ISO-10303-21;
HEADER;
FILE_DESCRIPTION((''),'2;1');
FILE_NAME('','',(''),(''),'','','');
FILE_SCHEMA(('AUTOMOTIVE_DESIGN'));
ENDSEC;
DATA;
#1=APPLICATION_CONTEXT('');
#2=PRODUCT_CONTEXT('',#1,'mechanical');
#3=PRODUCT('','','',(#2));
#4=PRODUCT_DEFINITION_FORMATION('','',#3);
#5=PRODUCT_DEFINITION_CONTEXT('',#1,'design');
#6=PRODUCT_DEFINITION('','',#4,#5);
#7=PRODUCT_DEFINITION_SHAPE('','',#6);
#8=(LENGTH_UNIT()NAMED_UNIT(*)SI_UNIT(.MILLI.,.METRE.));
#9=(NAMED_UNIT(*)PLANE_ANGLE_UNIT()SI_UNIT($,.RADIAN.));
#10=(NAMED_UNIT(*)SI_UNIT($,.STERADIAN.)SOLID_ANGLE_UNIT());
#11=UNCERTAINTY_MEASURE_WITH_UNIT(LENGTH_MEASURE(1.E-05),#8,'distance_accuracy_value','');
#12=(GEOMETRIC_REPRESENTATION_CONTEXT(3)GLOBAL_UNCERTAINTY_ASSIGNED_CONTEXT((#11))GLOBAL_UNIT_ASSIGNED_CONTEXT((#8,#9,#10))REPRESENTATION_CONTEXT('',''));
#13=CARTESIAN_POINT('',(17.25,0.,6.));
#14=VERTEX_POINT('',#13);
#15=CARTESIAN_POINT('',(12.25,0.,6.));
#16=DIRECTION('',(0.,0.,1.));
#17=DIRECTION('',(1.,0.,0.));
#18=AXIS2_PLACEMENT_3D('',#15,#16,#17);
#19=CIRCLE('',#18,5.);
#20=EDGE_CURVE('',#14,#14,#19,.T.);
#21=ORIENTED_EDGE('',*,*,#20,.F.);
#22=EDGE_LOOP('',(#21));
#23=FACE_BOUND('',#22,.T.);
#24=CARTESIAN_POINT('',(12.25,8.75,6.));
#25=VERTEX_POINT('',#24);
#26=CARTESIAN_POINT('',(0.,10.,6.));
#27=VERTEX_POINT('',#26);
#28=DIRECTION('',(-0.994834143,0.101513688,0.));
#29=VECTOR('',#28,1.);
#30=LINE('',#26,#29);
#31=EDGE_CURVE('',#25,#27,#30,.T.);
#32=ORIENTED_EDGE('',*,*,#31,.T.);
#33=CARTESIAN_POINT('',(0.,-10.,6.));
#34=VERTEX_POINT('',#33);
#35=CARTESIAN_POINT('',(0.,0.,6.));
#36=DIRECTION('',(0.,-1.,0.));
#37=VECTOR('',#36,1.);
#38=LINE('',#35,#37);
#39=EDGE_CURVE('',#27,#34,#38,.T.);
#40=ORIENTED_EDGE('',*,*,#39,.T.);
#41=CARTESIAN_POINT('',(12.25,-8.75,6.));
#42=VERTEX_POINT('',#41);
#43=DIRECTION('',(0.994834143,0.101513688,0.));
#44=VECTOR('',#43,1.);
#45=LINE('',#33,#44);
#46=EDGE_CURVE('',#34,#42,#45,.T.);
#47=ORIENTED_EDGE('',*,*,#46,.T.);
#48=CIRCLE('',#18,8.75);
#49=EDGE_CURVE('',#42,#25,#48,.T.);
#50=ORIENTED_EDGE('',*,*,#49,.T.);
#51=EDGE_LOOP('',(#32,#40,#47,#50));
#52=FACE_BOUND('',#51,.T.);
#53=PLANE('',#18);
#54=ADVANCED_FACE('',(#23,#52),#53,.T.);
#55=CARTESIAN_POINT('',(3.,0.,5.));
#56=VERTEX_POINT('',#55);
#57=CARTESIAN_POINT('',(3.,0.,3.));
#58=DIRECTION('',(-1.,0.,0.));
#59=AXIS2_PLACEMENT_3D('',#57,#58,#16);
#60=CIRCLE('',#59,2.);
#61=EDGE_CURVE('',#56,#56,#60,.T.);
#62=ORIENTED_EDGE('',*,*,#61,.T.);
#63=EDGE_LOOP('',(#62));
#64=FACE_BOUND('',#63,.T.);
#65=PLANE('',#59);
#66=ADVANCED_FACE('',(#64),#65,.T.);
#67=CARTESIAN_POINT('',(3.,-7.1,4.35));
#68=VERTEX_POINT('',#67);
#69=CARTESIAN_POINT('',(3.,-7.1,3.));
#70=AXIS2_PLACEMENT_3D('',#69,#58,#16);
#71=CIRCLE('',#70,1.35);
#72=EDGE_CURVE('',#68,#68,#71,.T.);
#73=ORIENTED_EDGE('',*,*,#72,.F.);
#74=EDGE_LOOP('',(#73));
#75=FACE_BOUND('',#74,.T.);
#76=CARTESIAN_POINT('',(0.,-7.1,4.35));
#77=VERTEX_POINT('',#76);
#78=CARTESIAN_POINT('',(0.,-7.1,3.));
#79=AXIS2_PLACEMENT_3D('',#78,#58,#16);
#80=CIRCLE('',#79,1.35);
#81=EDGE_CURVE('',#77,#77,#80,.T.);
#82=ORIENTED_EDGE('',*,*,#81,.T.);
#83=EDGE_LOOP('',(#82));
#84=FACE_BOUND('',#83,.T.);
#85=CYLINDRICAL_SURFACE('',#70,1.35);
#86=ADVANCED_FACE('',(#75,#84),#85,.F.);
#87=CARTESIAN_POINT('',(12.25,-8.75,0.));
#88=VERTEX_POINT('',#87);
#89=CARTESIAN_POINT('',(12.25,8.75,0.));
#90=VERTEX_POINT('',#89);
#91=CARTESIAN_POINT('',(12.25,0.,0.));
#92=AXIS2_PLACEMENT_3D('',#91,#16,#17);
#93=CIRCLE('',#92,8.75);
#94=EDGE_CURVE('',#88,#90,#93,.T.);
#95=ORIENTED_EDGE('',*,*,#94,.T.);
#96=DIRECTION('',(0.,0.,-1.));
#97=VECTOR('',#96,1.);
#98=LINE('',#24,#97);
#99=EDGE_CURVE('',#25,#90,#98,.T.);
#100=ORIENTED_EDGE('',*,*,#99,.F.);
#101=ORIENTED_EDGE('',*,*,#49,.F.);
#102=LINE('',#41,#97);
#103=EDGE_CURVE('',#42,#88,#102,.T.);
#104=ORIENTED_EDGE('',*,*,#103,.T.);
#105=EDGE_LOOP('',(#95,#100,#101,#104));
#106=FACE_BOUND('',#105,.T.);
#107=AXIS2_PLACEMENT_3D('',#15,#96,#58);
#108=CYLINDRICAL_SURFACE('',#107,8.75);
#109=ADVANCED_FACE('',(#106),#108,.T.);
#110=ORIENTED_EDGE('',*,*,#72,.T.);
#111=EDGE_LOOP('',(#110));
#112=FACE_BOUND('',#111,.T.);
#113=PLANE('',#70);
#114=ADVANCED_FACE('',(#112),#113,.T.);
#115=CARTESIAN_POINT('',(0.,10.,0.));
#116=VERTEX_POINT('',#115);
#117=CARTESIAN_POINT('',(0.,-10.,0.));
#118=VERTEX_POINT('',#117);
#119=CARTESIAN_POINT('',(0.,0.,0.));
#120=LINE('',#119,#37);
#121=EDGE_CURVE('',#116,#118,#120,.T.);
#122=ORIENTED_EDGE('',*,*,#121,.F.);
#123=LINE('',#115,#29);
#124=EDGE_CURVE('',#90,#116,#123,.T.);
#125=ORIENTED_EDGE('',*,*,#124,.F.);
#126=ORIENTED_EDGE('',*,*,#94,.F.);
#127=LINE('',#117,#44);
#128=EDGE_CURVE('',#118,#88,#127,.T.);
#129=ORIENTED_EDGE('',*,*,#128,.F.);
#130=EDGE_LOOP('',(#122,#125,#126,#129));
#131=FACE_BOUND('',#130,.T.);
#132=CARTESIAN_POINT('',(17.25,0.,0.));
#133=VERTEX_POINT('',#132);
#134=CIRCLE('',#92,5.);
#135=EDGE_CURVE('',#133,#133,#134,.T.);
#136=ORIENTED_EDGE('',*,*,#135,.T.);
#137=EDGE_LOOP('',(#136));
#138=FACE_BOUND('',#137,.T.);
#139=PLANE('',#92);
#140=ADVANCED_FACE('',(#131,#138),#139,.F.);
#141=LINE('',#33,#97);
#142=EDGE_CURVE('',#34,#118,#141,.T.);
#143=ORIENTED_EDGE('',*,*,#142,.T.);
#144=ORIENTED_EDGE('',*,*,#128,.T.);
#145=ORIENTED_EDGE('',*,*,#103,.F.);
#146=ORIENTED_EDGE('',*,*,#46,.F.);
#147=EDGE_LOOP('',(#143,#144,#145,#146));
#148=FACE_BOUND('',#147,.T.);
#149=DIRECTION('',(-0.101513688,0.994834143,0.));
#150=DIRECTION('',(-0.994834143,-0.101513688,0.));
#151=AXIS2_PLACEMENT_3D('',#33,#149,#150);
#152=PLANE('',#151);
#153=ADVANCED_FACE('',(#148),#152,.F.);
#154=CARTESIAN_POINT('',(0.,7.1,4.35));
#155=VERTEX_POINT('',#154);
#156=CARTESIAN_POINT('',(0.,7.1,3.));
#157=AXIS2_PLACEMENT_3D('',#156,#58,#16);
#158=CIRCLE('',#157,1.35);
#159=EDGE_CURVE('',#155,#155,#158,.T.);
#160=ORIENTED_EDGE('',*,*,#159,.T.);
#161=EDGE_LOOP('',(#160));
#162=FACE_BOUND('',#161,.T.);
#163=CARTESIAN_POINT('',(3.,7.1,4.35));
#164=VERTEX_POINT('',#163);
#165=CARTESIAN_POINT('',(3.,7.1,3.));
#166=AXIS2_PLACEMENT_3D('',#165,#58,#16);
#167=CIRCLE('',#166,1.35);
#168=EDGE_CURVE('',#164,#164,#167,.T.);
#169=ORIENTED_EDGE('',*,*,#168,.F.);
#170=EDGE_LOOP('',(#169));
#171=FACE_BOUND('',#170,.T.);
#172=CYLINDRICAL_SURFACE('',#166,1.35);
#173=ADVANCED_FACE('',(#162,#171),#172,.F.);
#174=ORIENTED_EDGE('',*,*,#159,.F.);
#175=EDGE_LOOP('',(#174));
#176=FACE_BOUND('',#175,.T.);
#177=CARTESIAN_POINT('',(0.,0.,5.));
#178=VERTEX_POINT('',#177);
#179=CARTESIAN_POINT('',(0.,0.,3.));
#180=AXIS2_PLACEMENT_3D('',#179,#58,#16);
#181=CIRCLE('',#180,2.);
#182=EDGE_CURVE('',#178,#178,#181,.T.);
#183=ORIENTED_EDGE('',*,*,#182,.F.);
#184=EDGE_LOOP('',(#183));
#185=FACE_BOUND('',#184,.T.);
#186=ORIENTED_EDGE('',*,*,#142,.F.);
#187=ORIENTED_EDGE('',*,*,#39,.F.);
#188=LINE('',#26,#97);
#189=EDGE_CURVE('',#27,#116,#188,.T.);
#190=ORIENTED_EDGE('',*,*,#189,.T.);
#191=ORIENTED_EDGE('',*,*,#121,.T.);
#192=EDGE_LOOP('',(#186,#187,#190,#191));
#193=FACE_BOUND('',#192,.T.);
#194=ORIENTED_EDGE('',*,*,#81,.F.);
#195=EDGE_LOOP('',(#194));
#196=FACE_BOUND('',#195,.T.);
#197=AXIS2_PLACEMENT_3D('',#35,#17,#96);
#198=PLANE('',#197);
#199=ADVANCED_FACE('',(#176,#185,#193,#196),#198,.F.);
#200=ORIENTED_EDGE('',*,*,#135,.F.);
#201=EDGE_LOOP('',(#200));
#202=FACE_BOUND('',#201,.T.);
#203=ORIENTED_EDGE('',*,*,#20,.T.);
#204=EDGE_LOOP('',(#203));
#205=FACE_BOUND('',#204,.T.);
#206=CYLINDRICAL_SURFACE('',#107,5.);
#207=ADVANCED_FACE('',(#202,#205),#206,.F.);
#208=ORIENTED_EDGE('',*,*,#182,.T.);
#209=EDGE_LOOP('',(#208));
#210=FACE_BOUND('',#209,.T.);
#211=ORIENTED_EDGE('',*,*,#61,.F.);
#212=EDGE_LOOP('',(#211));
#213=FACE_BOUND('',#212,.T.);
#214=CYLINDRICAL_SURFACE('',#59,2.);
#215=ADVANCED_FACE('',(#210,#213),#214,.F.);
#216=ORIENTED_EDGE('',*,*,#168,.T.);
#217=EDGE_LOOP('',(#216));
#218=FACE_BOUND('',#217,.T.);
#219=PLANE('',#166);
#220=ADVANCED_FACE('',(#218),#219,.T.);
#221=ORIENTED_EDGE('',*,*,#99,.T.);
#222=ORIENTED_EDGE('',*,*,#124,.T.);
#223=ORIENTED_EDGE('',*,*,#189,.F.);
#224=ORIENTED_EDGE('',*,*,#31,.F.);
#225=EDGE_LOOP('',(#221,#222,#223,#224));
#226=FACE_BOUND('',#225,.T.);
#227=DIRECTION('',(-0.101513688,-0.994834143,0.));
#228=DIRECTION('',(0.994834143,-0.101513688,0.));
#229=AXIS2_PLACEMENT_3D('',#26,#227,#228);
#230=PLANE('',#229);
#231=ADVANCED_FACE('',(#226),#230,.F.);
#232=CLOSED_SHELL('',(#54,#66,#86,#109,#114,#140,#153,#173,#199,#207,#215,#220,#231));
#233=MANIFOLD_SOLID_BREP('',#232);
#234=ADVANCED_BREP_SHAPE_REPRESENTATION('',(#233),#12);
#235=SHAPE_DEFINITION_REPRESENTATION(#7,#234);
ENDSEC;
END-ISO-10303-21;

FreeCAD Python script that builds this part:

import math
import FreeCAD as App
import Part
import Sketcher

doc = App.newDocument("Part")
body = doc.addObject("PartDesign::Body", "Body")

sketch1 = body.newObject("Sketcher::SketchObject", "Sketch")
sketch1.AttachmentSupport = (doc.getObject("XY_Plane"), [""])
sketch1.MapMode = "FlatFace"
sketch1.addGeometry([
    Part.LineSegment(App.Vector(12.25, 8.75, 0), App.Vector(0, 10, 0)),
    Part.LineSegment(App.Vector(0, 10, 0), App.Vector(0, -10, 0)),
    Part.LineSegment(App.Vector(0, -10, 0), App.Vector(12.25, -8.75, 0)),
    Part.ArcOfCircle(Part.Circle(App.Vector(12.25, 0, 0), App.Vector(0, 0, 1), 8.75), math.radians(-90), math.radians(90)),
    Part.Circle(App.Vector(12.25, 0, 0), App.Vector(0, 0, 1), 5),
], False)
sketch1.addConstraint([
    Sketcher.Constraint("Coincident", 0, 2, 1, 1),
    Sketcher.Constraint("Coincident", 1, 2, 2, 1),
    Sketcher.Constraint("Coincident", 2, 2, 3, 1),
    Sketcher.Constraint("Coincident", 3, 2, 0, 1),
    Sketcher.Constraint("Vertical", 1),
    Sketcher.Constraint("Coincident", 4, 3, 3, 3),
    Sketcher.Constraint("Symmetric", 0, 2, 1, 2, -1, 1),
    Sketcher.Constraint("Symmetric", 2, 2, 3, 2, -1),
    Sketcher.Constraint("Vertical", 4, 3, 2, 2),
    Sketcher.Constraint("Diameter", 4, 10.0),
    Sketcher.Constraint("DistanceY", 1, 2, 1, 1, 20.0),
    Sketcher.Constraint("Radius", 3, 8.75),
    Sketcher.Constraint("DistanceX", -1, 1, 3, 3, 12.25),
])
pad1 = body.newObject("PartDesign::Pad", "Pad")
pad1.Profile = sketch1
pad1.Length = 6

sketch2 = body.newObject("Sketcher::SketchObject", "Sketch001")
sketch2.AttachmentSupport = (doc.getObject("YZ_Plane"), [""])
sketch2.MapMode = "FlatFace"
sketch2.addGeometry([
    Part.Circle(App.Vector(7.1, 3, 0), App.Vector(0, 0, 1), 1.35),
    Part.Circle(App.Vector(-7.1, 3, 0), App.Vector(0, 0, 1), 1.35),
    Part.Circle(App.Vector(0, 3, 0), App.Vector(0, 0, 1), 2),
], False)
sketch2.addConstraint([
    Sketcher.Constraint("Equal", 0, 1),
    Sketcher.Constraint("Symmetric", 0, 3, 1, 3, -2),
    Sketcher.Constraint("PointOnObject", 2, 3, -2),
    Sketcher.Constraint("Horizontal", 1, 3, 2, 3),
    Sketcher.Constraint("Diameter", 2, 4.0),
    Sketcher.Constraint("Diameter", 0, 2.7),
    Sketcher.Constraint("DistanceY", -1, 1, 0, 3, 3.0),
    Sketcher.Constraint("DistanceX", -1, 1, 0, 3, 7.1),
])
pocket1 = body.newObject("PartDesign::Pocket", "Pocket")
pocket1.Profile = sketch2
pocket1.Length = 3
pocket1.Reversed = True

doc.recompute()
